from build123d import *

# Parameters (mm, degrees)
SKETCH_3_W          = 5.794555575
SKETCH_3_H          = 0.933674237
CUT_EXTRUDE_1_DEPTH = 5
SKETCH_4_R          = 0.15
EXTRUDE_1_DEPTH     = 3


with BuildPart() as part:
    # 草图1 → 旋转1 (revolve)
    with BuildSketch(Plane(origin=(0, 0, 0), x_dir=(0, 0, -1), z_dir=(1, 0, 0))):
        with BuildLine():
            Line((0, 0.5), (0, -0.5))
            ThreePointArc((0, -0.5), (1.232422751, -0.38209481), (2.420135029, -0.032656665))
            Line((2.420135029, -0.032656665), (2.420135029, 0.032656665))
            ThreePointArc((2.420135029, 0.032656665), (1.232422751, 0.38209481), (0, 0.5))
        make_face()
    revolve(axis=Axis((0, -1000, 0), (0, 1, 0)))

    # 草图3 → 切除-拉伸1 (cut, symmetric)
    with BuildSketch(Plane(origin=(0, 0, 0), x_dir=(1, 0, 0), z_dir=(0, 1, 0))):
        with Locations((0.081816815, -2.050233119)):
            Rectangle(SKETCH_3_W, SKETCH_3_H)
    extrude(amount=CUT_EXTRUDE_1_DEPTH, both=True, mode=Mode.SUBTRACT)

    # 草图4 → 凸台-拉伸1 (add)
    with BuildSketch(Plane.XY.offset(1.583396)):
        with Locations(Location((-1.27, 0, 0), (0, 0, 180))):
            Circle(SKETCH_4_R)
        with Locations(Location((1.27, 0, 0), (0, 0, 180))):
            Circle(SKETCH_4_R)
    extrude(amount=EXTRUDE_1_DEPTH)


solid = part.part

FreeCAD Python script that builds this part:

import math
import FreeCAD as App
import Part
import Sketcher

V = App.Vector
Q = App.Units.Quantity


def add_polygon(sketch, points):
    """Adds a closed chain of lines whose ends are joined by coincident constraints."""
    first, n = sketch.GeometryCount, len(points)
    for a, b in zip(points, points[1:] + points[:1]):
        sketch.addGeometry(Part.LineSegment(App.Vector(*a, 0), App.Vector(*b, 0)), False)
    for i in range(n):
        sketch.addConstraint(Sketcher.Constraint("Coincident", first + i, 2, first + (i + 1) % n, 1))

doc = App.newDocument("Part")
body = doc.addObject("PartDesign::Body", "Body")

sketch1 = body.newObject("Sketcher::SketchObject", "Sketch")
sketch1.AttachmentSupport = (doc.getObject("YZ_Plane"), [""])
sketch1.MapMode = "FlatFace"
sketch1.addGeometry([
    Part.LineSegment(V(0.5, 0, 0), V(-0.5, 0, 0)),
    Part.ArcOfCircle(Part.Circle(V(6, 0, 0), V(0, 0, 1), 6.5), math.radians(180), math.radians(202)),
    Part.LineSegment(V(-0.03, -2.42, 0), V(0.03, -2.42, 0)),
    Part.ArcOfCircle(Part.Circle(V(-6, 0, 0), V(0, 0, 1), 6.5), math.radians(-22), math.radians(0)),
], False)
sketch1.addConstraint([
    Sketcher.Constraint("Coincident", 0, 2, 1, 1),
    Sketcher.Constraint("Coincident", 1, 2, 2, 1),
    Sketcher.Constraint("Coincident", 2, 2, 3, 1),
    Sketcher.Constraint("Coincident", 3, 2, 0, 1),
    Sketcher.Constraint("Horizontal", 0),
    Sketcher.Constraint("Horizontal", 2),
    Sketcher.Constraint("Equal", 1, 3),
    Sketcher.Constraint("Symmetric", 1, 3, 3, 3, -1, 1),
    Sketcher.Constraint("PointOnObject", 1, 3, -1),
    Sketcher.Constraint("PointOnObject", 0, 2, -1),
    Sketcher.Constraint("Radius", 1, Q("6.5 mm")),
    Sketcher.Constraint("DistanceX", 0, 2, 0, 1, Q("1 mm")),
    Sketcher.Constraint("DistanceX", 2, 1, 2, 2, Q("0.065313 mm")),
])
revolution = body.newObject("PartDesign::Revolution", "Revolution")
revolution.Profile = sketch1
revolution.ReferenceAxis = (sketch1, ["H_Axis"])
revolution.Angle = 360

sketch2 = body.newObject("Sketcher::SketchObject", "Sketch001")
sketch2.AttachmentSupport = (doc.getObject("XZ_Plane"), [""])
sketch2.MapMode = "FlatFace"
add_polygon(sketch2, [(-2.8, 1.6), (-2.8, 2.5), (3, 2.5), (3, 1.6)])
sketch2.addConstraint([
    Sketcher.Constraint("Vertical", 0),
    Sketcher.Constraint("Horizontal", 1),
    Sketcher.Constraint("Vertical", 2),
    Sketcher.Constraint("Horizontal", 3),
    Sketcher.Constraint("DistanceX", 1, 1, 1, 2, Q("5.794556 mm")),
    Sketcher.Constraint("DistanceY", 0, 1, 0, 2, Q("0.933674 mm")),
    Sketcher.Constraint("DistanceX", 0, 2, -1, 1, Q("2.815461 mm")),
    Sketcher.Constraint("DistanceY", -1, 1, 0, 2, Q("2.51707 mm")),
])
pocket1 = body.newObject("PartDesign::Pocket", "Pocket")
pocket1.Profile = sketch2
pocket1.Length = 10
pocket1.Midplane = True

sketch3 = body.newObject("Sketcher::SketchObject", "Sketch002")
sketch3.AttachmentSupport = (doc.getObject("XY_Plane"), [""])
sketch3.MapMode = "FlatFace"
sketch3.AttachmentOffset = App.Placement(V(0, 0, 1.583396), App.Rotation())
sketch3.addGeometry([
    Part.Circle(V(-1.27, 0, 0), V(0, 0, 1), 0.15),
    Part.Circle(V(1.27, 0, 0), V(0, 0, 1), 0.15),
], False)
sketch3.addConstraint([
    Sketcher.Constraint("Equal", 0, 1),
    Sketcher.Constraint("Symmetric", 0, 3, 1, 3, -1, 1),
    Sketcher.Constraint("PointOnObject", 0, 3, -1),
    Sketcher.Constraint("Diameter", 0, Q("0.3 mm")),
    Sketcher.Constraint("DistanceX", 0, 3, -1, 1, Q("1.27 mm")),
])
pad1 = body.newObject("PartDesign::Pad", "Pad")
pad1.Profile = sketch3
pad1.Length = 3

doc.recompute()
